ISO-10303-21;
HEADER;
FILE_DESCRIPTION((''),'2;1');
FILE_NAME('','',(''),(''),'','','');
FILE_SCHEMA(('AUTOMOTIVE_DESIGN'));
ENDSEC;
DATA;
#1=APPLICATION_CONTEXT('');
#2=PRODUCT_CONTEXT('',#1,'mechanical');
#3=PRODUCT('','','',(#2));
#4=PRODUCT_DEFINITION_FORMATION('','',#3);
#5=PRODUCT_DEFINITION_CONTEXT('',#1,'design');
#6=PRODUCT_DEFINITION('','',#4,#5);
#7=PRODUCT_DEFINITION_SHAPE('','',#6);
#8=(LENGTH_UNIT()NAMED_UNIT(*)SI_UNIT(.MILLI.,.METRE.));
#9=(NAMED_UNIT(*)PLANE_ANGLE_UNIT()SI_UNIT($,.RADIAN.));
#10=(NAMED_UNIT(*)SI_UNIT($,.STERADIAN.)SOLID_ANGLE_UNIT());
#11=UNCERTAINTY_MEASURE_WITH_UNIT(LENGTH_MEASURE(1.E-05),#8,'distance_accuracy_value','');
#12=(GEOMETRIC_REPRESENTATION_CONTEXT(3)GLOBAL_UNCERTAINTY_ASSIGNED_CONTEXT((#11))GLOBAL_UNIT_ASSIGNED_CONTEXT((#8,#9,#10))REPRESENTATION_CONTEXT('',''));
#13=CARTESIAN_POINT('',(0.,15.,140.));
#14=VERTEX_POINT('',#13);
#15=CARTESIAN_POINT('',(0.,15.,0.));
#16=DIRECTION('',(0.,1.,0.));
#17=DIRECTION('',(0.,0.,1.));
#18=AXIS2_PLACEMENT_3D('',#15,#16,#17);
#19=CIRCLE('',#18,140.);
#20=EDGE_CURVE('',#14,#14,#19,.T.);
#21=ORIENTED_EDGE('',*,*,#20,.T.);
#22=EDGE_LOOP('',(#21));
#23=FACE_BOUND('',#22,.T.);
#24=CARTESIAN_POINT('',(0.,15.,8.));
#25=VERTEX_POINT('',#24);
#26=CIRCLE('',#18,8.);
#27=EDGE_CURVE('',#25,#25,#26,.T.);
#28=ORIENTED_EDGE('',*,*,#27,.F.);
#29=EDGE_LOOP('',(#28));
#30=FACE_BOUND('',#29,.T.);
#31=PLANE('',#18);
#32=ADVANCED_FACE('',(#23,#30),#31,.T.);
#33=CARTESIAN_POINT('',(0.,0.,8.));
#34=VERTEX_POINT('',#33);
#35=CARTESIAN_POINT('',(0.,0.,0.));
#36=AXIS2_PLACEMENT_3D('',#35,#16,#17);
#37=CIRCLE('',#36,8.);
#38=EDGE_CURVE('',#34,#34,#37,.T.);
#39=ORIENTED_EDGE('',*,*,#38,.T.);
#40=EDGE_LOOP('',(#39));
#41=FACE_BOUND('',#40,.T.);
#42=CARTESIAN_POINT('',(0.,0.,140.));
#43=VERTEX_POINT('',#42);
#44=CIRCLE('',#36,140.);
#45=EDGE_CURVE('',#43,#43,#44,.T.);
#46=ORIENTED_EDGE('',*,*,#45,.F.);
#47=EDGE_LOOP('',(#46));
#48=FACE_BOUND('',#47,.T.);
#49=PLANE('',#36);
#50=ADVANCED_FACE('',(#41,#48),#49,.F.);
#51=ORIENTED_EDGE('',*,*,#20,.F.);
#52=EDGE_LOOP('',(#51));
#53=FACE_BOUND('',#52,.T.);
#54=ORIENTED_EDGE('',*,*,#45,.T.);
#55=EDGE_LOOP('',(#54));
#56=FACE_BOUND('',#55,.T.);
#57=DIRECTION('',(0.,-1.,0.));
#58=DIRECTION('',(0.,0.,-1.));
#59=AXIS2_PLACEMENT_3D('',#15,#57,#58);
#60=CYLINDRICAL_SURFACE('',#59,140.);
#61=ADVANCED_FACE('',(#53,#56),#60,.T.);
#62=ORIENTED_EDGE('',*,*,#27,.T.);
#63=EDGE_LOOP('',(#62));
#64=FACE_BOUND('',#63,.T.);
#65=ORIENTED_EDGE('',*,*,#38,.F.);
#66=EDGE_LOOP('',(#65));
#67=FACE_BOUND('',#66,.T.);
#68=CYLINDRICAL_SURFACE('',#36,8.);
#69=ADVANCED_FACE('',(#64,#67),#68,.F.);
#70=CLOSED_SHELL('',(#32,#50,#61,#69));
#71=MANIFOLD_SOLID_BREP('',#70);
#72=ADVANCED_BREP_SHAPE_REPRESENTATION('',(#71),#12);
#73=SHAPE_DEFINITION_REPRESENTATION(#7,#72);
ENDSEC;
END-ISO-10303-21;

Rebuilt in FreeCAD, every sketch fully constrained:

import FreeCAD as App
import Part
import Sketcher
from FreeCAD import Vector
Q = App.Units.Quantity

doc = App.newDocument("Part")
body = doc.addObject("PartDesign::Body", "Body")

# Sketch on XZ plane
sketch1 = body.newObject("Sketcher::SketchObject", "Sketch")
sketch1.AttachmentSupport = (doc.getObject("XZ_Plane"), [""])
sketch1.MapMode = "FlatFace"
sketch1.addGeometry(Part.Circle(Vector(0, 0, 0), Vector(0, 0, 1), 140), False)
sketch1.addConstraint([
    Sketcher.Constraint("Coincident", 0, 3, -1, 1),
    Sketcher.Constraint("Diameter", 0, Q("280 mm")),
])
pad1 = body.newObject("PartDesign::Pad", "Pad")
pad1.Profile = sketch1
pad1.Length = 15
pad1.Reversed = True

# Sketch on XZ plane
sketch2 = body.newObject("Sketcher::SketchObject", "Sketch001")
sketch2.AttachmentSupport = (doc.getObject("XZ_Plane"), [""])
sketch2.MapMode = "FlatFace"
sketch2.AttachmentOffset = App.Placement(Vector(0, 0, -15), App.Rotation())
sketch2.addGeometry(Part.Circle(Vector(0, 0, 0), Vector(0, 0, 1), 8), False)
sketch2.addConstraint([
    Sketcher.Constraint("Coincident", 0, 3, -1, 1),
    Sketcher.Constraint("Diameter", 0, Q("16 mm")),
])
pocket1 = body.newObject("PartDesign::Pocket", "Pocket")
pocket1.Profile = sketch2
pocket1.Type = "ThroughAll"
pocket1.Reversed = True

doc.recompute()
